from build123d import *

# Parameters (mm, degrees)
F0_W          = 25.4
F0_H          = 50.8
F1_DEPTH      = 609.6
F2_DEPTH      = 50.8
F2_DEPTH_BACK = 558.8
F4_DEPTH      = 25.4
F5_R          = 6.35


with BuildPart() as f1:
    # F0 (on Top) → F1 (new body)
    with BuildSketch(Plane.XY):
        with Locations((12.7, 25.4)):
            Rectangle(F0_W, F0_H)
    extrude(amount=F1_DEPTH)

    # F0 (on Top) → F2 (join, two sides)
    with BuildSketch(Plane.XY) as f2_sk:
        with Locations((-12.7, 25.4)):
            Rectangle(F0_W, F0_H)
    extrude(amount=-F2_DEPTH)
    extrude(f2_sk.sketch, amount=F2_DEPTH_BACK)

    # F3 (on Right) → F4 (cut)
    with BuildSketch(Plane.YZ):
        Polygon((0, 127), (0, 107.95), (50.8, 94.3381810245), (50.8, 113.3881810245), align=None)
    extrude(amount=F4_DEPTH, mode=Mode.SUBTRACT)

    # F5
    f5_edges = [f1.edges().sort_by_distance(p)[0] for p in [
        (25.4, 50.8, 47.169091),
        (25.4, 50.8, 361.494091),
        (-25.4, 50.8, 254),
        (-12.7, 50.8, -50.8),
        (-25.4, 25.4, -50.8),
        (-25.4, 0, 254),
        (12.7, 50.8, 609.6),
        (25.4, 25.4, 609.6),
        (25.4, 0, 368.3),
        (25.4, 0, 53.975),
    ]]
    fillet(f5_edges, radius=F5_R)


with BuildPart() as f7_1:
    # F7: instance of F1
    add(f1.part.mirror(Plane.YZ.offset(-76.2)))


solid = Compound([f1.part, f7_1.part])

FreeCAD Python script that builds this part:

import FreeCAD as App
import Part
import Sketcher
Q = App.Units.Quantity


def edges_at(feature, points):
    """Names of the edges that pass closest to the given points."""
    edges = feature.Shape.Edges
    near = lambda p: min(range(len(edges)), key=lambda i: edges[i].distToShape(Part.Vertex(*p))[0])
    return sorted({f"Edge{near(p) + 1}" for p in points})


def add_polygon(sketch, points):
    """Adds a closed chain of lines whose ends are joined by coincident constraints."""
    first, n = sketch.GeometryCount, len(points)
    for a, b in zip(points, points[1:] + points[:1]):
        sketch.addGeometry(Part.LineSegment(App.Vector(*a, 0), App.Vector(*b, 0)), False)
    for i in range(n):
        sketch.addConstraint(Sketcher.Constraint("Coincident", first + i, 2, first + (i + 1) % n, 1))

doc = App.newDocument("Part")
body = doc.addObject("PartDesign::Body", "Body")

# Sketch on XY plane
sketch1 = body.newObject("Sketcher::SketchObject", "Sketch")
sketch1.AttachmentSupport = (doc.getObject("XY_Plane"), [""])
sketch1.MapMode = "FlatFace"
add_polygon(sketch1, [(0, 50.8), (0, 0), (25.4, 0), (25.4, 50.8)])  # lines 0-3
sketch1.addConstraint(Sketcher.Constraint("Vertical", 0))
sketch1.addConstraint(Sketcher.Constraint("Horizontal", 1))
sketch1.addConstraint(Sketcher.Constraint("Vertical", 2))
sketch1.addConstraint(Sketcher.Constraint("Horizontal", 3))
sketch1.addConstraint(Sketcher.Constraint("Coincident", 0, 2, -1, 1))
sketch1.addConstraint(Sketcher.Constraint("DistanceX", 1, 1, 1, 2, Q("1 in")))
sketch1.addConstraint(Sketcher.Constraint("DistanceY", 0, 2, 0, 1, Q("2 in")))
pad1 = body.newObject("PartDesign::Pad", "Pad")
pad1.Profile = sketch1
pad1.Length = Q("24 in")

# Sketch on XY plane
sketch2 = body.newObject("Sketcher::SketchObject", "Sketch001")
sketch2.AttachmentSupport = (doc.getObject("XY_Plane"), [""])
sketch2.MapMode = "FlatFace"
add_polygon(sketch2, [(-25.4, 50.8), (-25.4, 0), (0, 0), (0, 50.8)])  # lines 0-3
sketch2.addConstraint(Sketcher.Constraint("Vertical", 0))
sketch2.addConstraint(Sketcher.Constraint("Horizontal", 1))
sketch2.addConstraint(Sketcher.Constraint("Vertical", 2))
sketch2.addConstraint(Sketcher.Constraint("Horizontal", 3))
sketch2.addConstraint(Sketcher.Constraint("Coincident", 1, 2, -1, 1))
sketch2.addConstraint(Sketcher.Constraint("DistanceX", 1, 1, 1, 2, Q("1 in")))
sketch2.addConstraint(Sketcher.Constraint("DistanceY", 0, 2, 0, 1, Q("2 in")))
pad2 = body.newObject("PartDesign::Pad", "Pad001")
pad2.Profile = sketch2
pad2.Type = "TwoLengths"
pad2.Length = Q("2 in")
pad2.Length2 = Q("22 in")
pad2.Reversed = True

# Sketch on YZ plane
sketch3 = body.newObject("Sketcher::SketchObject", "Sketch002")
sketch3.AttachmentSupport = (doc.getObject("YZ_Plane"), [""])
sketch3.MapMode = "FlatFace"
add_polygon(sketch3, [(0, 127), (0, 107.95), (50.8, 94.338181), (50.8, 113.388181)])  # lines 0-3
sketch3.addConstraint(Sketcher.Constraint("Vertical", 0))
sketch3.addConstraint(Sketcher.Constraint("Vertical", 2))
sketch3.addConstraint(Sketcher.Constraint("PointOnObject", 0, 2, -2))
sketch3.addConstraint(Sketcher.Constraint("Parallel", 1, 3))
sketch3.addConstraint(Sketcher.Constraint("DistanceX", -1, 1, 1, 2, Q("2 in")))
sketch3.addConstraint(Sketcher.Constraint("DistanceY", -1, 1, 3, 2, Q("5 in")))
sketch3.addConstraint(Sketcher.Constraint("Angle", 1, Q("-15 deg")))
sketch3.addConstraint(Sketcher.Constraint("DistanceY", 0, 2, 0, 1, Q("0.75 in")))
pocket1 = body.newObject("PartDesign::Pocket", "Pocket")
pocket1.Profile = sketch3
pocket1.Length = Q("1 in")
pocket1.Reversed = True
doc.recompute()

fillet = body.newObject("PartDesign::Fillet", "Fillet")
fillet.Base = (pocket1, edges_at(pocket1, [
    (25.4, 50.8, 47.169),
    (25.4, 50.8, 361.494),
    (-25.4, 50.8, 254),
    (-12.7, 50.8, -50.8),
    (-25.4, 25.4, -50.8),
    (-25.4, 0, 254),
    (12.7, 50.8, 609.6),
    (25.4, 25.4, 609.6),
    (25.4, 0, 368.3),
    (25.4, 0, 53.975),
]))
fillet.Radius = Q("0.25 in")
body2 = doc.addObject("PartDesign::Body", "Body001")
doc.recompute()

mirroring = doc.addObject("Part::Mirroring", "Mirroring")
mirroring.Source = body
mirroring.Base = App.Vector(-76.2, 0, 0)
mirroring.Normal = App.Vector(1, 0, 0)
body2.BaseFeature = mirroring
doc.recompute()
mirroring.Visibility = False

doc.recompute()
